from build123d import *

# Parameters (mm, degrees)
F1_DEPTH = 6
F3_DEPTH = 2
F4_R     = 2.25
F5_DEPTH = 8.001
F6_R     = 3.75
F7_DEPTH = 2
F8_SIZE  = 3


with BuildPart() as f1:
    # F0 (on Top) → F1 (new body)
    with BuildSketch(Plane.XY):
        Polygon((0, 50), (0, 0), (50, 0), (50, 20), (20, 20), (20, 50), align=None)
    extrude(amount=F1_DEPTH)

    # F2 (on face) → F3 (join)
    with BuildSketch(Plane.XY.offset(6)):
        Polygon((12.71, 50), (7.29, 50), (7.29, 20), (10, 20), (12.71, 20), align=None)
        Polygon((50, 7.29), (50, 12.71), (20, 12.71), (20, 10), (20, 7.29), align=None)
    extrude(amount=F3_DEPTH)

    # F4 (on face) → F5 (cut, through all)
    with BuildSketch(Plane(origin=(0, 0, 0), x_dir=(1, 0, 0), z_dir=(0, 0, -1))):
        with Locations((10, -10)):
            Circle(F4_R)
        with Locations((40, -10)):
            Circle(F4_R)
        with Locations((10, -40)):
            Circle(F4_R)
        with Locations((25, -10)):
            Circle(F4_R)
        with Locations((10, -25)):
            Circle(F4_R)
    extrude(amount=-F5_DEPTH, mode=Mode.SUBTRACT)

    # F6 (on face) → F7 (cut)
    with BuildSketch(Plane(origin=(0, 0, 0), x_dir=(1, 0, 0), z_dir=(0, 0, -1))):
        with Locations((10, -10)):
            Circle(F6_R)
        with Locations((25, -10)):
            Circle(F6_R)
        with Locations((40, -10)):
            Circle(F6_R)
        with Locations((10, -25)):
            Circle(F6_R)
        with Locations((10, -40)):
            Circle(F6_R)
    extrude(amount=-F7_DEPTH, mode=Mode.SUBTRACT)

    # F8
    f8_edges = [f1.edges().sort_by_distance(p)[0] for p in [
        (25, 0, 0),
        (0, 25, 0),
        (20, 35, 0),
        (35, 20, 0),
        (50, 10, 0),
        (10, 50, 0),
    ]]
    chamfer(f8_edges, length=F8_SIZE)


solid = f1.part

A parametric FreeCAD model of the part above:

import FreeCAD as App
import Part
import Sketcher


def edges_at(feature, points):
    """Names of the edges that pass closest to the given points."""
    edges = feature.Shape.Edges
    near = lambda p: min(range(len(edges)), key=lambda i: edges[i].distToShape(Part.Vertex(*p))[0])
    return sorted({f"Edge{near(p) + 1}" for p in points})


def add_polygon(sketch, points):
    """Adds a closed chain of lines whose ends are joined by coincident constraints."""
    first, n = sketch.GeometryCount, len(points)
    for a, b in zip(points, points[1:] + points[:1]):
        sketch.addGeometry(Part.LineSegment(App.Vector(*a, 0), App.Vector(*b, 0)), False)
    for i in range(n):
        sketch.addConstraint(Sketcher.Constraint("Coincident", first + i, 2, first + (i + 1) % n, 1))

doc = App.newDocument("Part")
body = doc.addObject("PartDesign::Body", "Body")

# Sketch on XY plane
sketch1 = body.newObject("Sketcher::SketchObject", "Sketch")
sketch1.AttachmentSupport = (doc.getObject("XY_Plane"), [""])
sketch1.MapMode = "FlatFace"
add_polygon(sketch1, [(0, 50), (0, 0), (50, 0), (50, 20), (20, 20), (20, 50)])  # lines 0-5
sketch1.addConstraint(Sketcher.Constraint("Vertical", 0))
sketch1.addConstraint(Sketcher.Constraint("Horizontal", 1))
sketch1.addConstraint(Sketcher.Constraint("Vertical", 2))
sketch1.addConstraint(Sketcher.Constraint("Horizontal", 3))
sketch1.addConstraint(Sketcher.Constraint("Vertical", 4))
sketch1.addConstraint(Sketcher.Constraint("Horizontal", 5))
sketch1.addConstraint(Sketcher.Constraint("Coincident", 0, 2, -1, 1))
sketch1.addConstraint(Sketcher.Constraint("Equal", 1, 0))
sketch1.addConstraint(Sketcher.Constraint("Equal", 5, 2))
sketch1.addConstraint(Sketcher.Constraint("DistanceX", 1, 1, 1, 2, 50.0))
sketch1.addConstraint(Sketcher.Constraint("DistanceX", 3, 2, 3, 1, 30.0))
pad1 = body.newObject("PartDesign::Pad", "Pad")
pad1.Profile = sketch1
pad1.Length = 6

# Sketch on XY plane
sketch2 = body.newObject("Sketcher::SketchObject", "Sketch001")
sketch2.AttachmentSupport = (doc.getObject("XY_Plane"), [""])
sketch2.MapMode = "FlatFace"
sketch2.AttachmentOffset = App.Placement(App.Vector(0, 0, 6), App.Rotation())
add_polygon(sketch2, [(13, 50), (7, 50), (7, 20), (13, 20)])  # lines 0-3
add_polygon(sketch2, [(50, 7), (50, 13), (20, 13), (20, 7)])  # lines 4-7
sketch2.addConstraint(Sketcher.Constraint("Horizontal", 0))
sketch2.addConstraint(Sketcher.Constraint("Vertical", 1))
sketch2.addConstraint(Sketcher.Constraint("Horizontal", 2))
sketch2.addConstraint(Sketcher.Constraint("Vertical", 3))
sketch2.addConstraint(Sketcher.Constraint("Vertical", 4))
sketch2.addConstraint(Sketcher.Constraint("Horizontal", 5))
sketch2.addConstraint(Sketcher.Constraint("Vertical", 6))
sketch2.addConstraint(Sketcher.Constraint("Horizontal", 7))
sketch2.addConstraint(Sketcher.Constraint("Equal", 7, 1))
sketch2.addConstraint(Sketcher.Constraint("Equal", 2, 4))
sketch2.addConstraint(Sketcher.Constraint("DistanceX", 5, 2, 5, 1, 30.0))
sketch2.addConstraint(Sketcher.Constraint("DistanceY", -1, 1, 0, 2, 50.0))
sketch2.addConstraint(Sketcher.Constraint("DistanceX", -1, 1, 4, 2, 50.0))
sketch2.addConstraint(Sketcher.Constraint("DistanceX", 0, 2, 0, 1, 5.42))
sketch2.addConstraint(Sketcher.Constraint("DistanceX", -1, 1, 0, 2, 7.29))
sketch2.addConstraint(Sketcher.Constraint("DistanceY", -1, 1, 4, 2, 12.71))
pad2 = body.newObject("PartDesign::Pad", "Pad001")
pad2.Profile = sketch2
pad2.Length = 2

# Sketch on XY plane
sketch3 = body.newObject("Sketcher::SketchObject", "Sketch002")
sketch3.AttachmentSupport = (doc.getObject("XY_Plane"), [""])
sketch3.MapMode = "FlatFace"
sketch3.addGeometry(Part.Circle(App.Vector(10, 10, 0), App.Vector(0, 0, 1), 2.2), False)
sketch3.addGeometry(Part.Circle(App.Vector(40, 10, 0), App.Vector(0, 0, 1), 2.2), False)
sketch3.addGeometry(Part.Circle(App.Vector(10, 40, 0), App.Vector(0, 0, 1), 2.2), False)
sketch3.addGeometry(Part.Circle(App.Vector(25, 10, 0), App.Vector(0, 0, 1), 2.2), False)
sketch3.addGeometry(Part.Circle(App.Vector(10, 25, 0), App.Vector(0, 0, 1), 2.2), False)
sketch3.addConstraint(Sketcher.Constraint("Equal", 0, 1))
sketch3.addConstraint(Sketcher.Constraint("Equal", 1, 2))
sketch3.addConstraint(Sketcher.Constraint("Equal", 2, 3))
sketch3.addConstraint(Sketcher.Constraint("Equal", 3, 4))
sketch3.addConstraint(Sketcher.Constraint("Horizontal", 0, 3, 1, 3))
sketch3.addConstraint(Sketcher.Constraint("Horizontal", 1, 3, 3, 3))
sketch3.addConstraint(Sketcher.Constraint("Vertical", 0, 3, 2, 3))
sketch3.addConstraint(Sketcher.Constraint("Vertical", 2, 3, 4, 3))
sketch3.addConstraint(Sketcher.Constraint("Diameter", 0, 4.5))
sketch3.addConstraint(Sketcher.Constraint("DistanceX", -1, 1, 0, 3, 10.0))
sketch3.addConstraint(Sketcher.Constraint("DistanceY", -1, 1, 0, 3, 10.0))
sketch3.addConstraint(Sketcher.Constraint("DistanceX", -1, 1, 1, 3, 40.0))
sketch3.addConstraint(Sketcher.Constraint("DistanceY", -1, 1, 2, 3, 40.0))
sketch3.addConstraint(Sketcher.Constraint("DistanceX", -1, 1, 3, 3, 25.0))
sketch3.addConstraint(Sketcher.Constraint("DistanceY", -1, 1, 4, 3, 25.0))
pocket1 = body.newObject("PartDesign::Pocket", "Pocket")
pocket1.Profile = sketch3
pocket1.Type = "ThroughAll"
pocket1.Reversed = True

# Sketch on XY plane
sketch4 = body.newObject("Sketcher::SketchObject", "Sketch003")
sketch4.AttachmentSupport = (doc.getObject("XY_Plane"), [""])
sketch4.MapMode = "FlatFace"
sketch4.addGeometry(Part.Circle(App.Vector(10, 10, 0), App.Vector(0, 0, 1), 3.8), False)
sketch4.addGeometry(Part.Circle(App.Vector(25, 10, 0), App.Vector(0, 0, 1), 3.8), False)
sketch4.addGeometry(Part.Circle(App.Vector(40, 10, 0), App.Vector(0, 0, 1), 3.8), False)
sketch4.addGeometry(Part.Circle(App.Vector(10, 25, 0), App.Vector(0, 0, 1), 3.8), False)
sketch4.addGeometry(Part.Circle(App.Vector(10, 40, 0), App.Vector(0, 0, 1), 3.8), False)
sketch4.addConstraint(Sketcher.Constraint("Equal", 0, 1))
sketch4.addConstraint(Sketcher.Constraint("Equal", 1, 2))
sketch4.addConstraint(Sketcher.Constraint("Equal", 2, 3))
sketch4.addConstraint(Sketcher.Constraint("Equal", 3, 4))
sketch4.addConstraint(Sketcher.Constraint("Horizontal", 0, 3, 1, 3))
sketch4.addConstraint(Sketcher.Constraint("Horizontal", 1, 3, 2, 3))
sketch4.addConstraint(Sketcher.Constraint("Vertical", 0, 3, 3, 3))
sketch4.addConstraint(Sketcher.Constraint("Vertical", 3, 3, 4, 3))
sketch4.addConstraint(Sketcher.Constraint("Diameter", 0, 7.5))
sketch4.addConstraint(Sketcher.Constraint("DistanceX", -1, 1, 0, 3, 10.0))
sketch4.addConstraint(Sketcher.Constraint("DistanceY", -1, 1, 0, 3, 10.0))
sketch4.addConstraint(Sketcher.Constraint("DistanceX", -1, 1, 1, 3, 25.0))
sketch4.addConstraint(Sketcher.Constraint("DistanceX", -1, 1, 2, 3, 40.0))
sketch4.addConstraint(Sketcher.Constraint("DistanceY", -1, 1, 3, 3, 25.0))
sketch4.addConstraint(Sketcher.Constraint("DistanceY", -1, 1, 4, 3, 40.0))
pocket2 = body.newObject("PartDesign::Pocket", "Pocket001")
pocket2.Profile = sketch4
pocket2.Length = 2
pocket2.Reversed = True
doc.recompute()

chamfer = body.newObject("PartDesign::Chamfer", "Chamfer")
chamfer.Base = (pocket2, edges_at(pocket2, [
    (25, 0, 0),
    (0, 25, 0),
    (20, 35, 0),
    (35, 20, 0),
    (50, 10, 0),
    (10, 50, 0),
]))
chamfer.Size = 3

doc.recompute()
